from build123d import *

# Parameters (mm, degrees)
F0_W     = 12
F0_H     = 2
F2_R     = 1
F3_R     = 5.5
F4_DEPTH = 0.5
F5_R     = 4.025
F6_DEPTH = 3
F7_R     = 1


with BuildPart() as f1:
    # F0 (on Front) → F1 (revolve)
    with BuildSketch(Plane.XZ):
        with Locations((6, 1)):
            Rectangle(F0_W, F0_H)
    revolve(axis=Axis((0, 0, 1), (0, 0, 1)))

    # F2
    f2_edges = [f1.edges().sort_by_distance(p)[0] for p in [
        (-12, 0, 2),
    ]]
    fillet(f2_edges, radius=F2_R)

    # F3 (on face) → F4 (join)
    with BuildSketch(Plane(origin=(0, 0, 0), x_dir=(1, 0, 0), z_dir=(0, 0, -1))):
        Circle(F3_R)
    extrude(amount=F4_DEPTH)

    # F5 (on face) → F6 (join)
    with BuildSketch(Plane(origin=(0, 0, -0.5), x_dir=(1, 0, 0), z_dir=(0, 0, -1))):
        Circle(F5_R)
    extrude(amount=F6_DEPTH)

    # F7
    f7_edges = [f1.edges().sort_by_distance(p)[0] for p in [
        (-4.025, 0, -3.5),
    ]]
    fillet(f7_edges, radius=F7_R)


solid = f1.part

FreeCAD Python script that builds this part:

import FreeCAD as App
import Part
import Sketcher
from FreeCAD import Vector


def edges_at(feature, points):
    """Names of the edges that pass closest to the given points."""
    edges = feature.Shape.Edges
    near = lambda p: min(range(len(edges)), key=lambda i: edges[i].distToShape(Part.Vertex(*p))[0])
    return sorted({f"Edge{near(p) + 1}" for p in points})


def add_polygon(sketch, points):
    """Adds a closed chain of lines whose ends are joined by coincident constraints."""
    first, n = sketch.GeometryCount, len(points)
    for a, b in zip(points, points[1:] + points[:1]):
        sketch.addGeometry(Part.LineSegment(App.Vector(*a, 0), App.Vector(*b, 0)), False)
    for i in range(n):
        sketch.addConstraint(Sketcher.Constraint("Coincident", first + i, 2, first + (i + 1) % n, 1))

doc = App.newDocument("Part")
body = doc.addObject("PartDesign::Body", "Body")

# Sketch on XZ plane
sketch1 = doc.addObject("Sketcher::SketchObject", "Sketch")
body.addObject(sketch1)
sketch1.AttachmentSupport = (doc.XZ_Plane, [""])
sketch1.MapMode = "FlatFace"
add_polygon(sketch1, [(0, 2), (0, 0), (12, 0), (12, 2)])  # lines 0-3
sketch1.addConstraint([
    Sketcher.Constraint("Vertical", 0),
    Sketcher.Constraint("Horizontal", 1),
    Sketcher.Constraint("Vertical", 2),
    Sketcher.Constraint("Horizontal", 3),
    Sketcher.Constraint("Coincident", 0, 2, -1, 1),
    Sketcher.Constraint("DistanceX", 1, 1, 1, 2, 12.0),
    Sketcher.Constraint("DistanceY", 0, 2, 0, 1, 2.0),
])
revolution = doc.addObject("PartDesign::Revolution", "Revolution")
body.addObject(revolution)
revolution.Profile = sketch1
revolution.ReferenceAxis = (sketch1, ["V_Axis"])
revolution.Angle = 360
doc.recompute()

fillet = doc.addObject("PartDesign::Fillet", "Fillet")
body.addObject(fillet)
fillet.Base = (revolution, edges_at(revolution, [(-12, 0, 2)]))
fillet.Radius = 1

# Sketch on XY plane
sketch2 = doc.addObject("Sketcher::SketchObject", "Sketch001")
body.addObject(sketch2)
sketch2.AttachmentSupport = (doc.XY_Plane, [""])
sketch2.MapMode = "FlatFace"
sketch2.addGeometry(Part.Circle(Vector(0, 0, 0), Vector(0, 0, 1), 5.5), False)
sketch2.addConstraint([
    Sketcher.Constraint("Coincident", 0, 3, -1, 1),
    Sketcher.Constraint("Diameter", 0, 11.0),
])
pad1 = doc.addObject("PartDesign::Pad", "Pad")
body.addObject(pad1)
pad1.Profile = sketch2
pad1.Length = 0.5
pad1.Reversed = True

# Sketch on XY plane
sketch3 = doc.addObject("Sketcher::SketchObject", "Sketch002")
body.addObject(sketch3)
sketch3.AttachmentSupport = (doc.XY_Plane, [""])
sketch3.MapMode = "FlatFace"
sketch3.AttachmentOffset = App.Placement(Vector(0, 0, -0.5), App.Rotation())
sketch3.addGeometry(Part.Circle(Vector(0, 0, 0), Vector(0, 0, 1), 4.025), False)
sketch3.addConstraint([
    Sketcher.Constraint("Coincident", 0, 3, -1, 1),
    Sketcher.Constraint("Diameter", 0, 8.05),
])
pad2 = doc.addObject("PartDesign::Pad", "Pad001")
body.addObject(pad2)
pad2.Profile = sketch3
pad2.Length = 3
pad2.Reversed = True
doc.recompute()

fillet2 = doc.addObject("PartDesign::Fillet", "Fillet001")
body.addObject(fillet2)
fillet2.Base = (pad2, edges_at(pad2, [(-4.025, 0, -3.5)]))
fillet2.Radius = 1

doc.recompute()
